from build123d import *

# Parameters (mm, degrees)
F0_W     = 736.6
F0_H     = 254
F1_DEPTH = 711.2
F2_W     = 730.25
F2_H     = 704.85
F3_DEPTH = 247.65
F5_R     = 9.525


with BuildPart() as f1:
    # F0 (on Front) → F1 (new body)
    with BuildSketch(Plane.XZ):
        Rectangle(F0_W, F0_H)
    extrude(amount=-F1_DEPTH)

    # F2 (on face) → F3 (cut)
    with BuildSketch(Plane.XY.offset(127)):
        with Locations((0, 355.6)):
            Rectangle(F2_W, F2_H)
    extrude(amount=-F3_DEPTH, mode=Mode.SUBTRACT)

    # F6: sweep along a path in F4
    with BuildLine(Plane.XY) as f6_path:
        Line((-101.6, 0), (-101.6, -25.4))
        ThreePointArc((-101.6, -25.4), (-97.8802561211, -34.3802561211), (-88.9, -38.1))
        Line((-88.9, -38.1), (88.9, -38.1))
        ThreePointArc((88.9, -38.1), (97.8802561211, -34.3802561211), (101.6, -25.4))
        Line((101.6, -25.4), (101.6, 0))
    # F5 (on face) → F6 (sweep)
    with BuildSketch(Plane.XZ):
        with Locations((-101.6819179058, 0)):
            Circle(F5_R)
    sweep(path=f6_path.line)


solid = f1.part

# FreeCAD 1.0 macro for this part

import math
import FreeCAD as App
import Part
import Sketcher

V = App.Vector
Q = App.Units.Quantity

doc = App.newDocument("Part")
body = doc.addObject("PartDesign::Body", "Body")

# Sketch on XZ plane
sketch1 = body.newObject("Sketcher::SketchObject", "Sketch")
sketch1.AttachmentSupport = (doc.getObject("XZ_Plane"), [""])
sketch1.MapMode = "FlatFace"
sketch1.addGeometry([
    Part.LineSegment(V(-368.3, 127, 0), V(-368.3, -127, 0)),
    Part.LineSegment(V(-368.3, -127, 0), V(368.3, -127, 0)),
    Part.LineSegment(V(368.3, -127, 0), V(368.3, 127, 0)),
    Part.LineSegment(V(368.3, 127, 0), V(-368.3, 127, 0)),
], False)
sketch1.addConstraint([
    Sketcher.Constraint("Coincident", 0, 2, 1, 1),
    Sketcher.Constraint("Coincident", 1, 2, 2, 1),
    Sketcher.Constraint("Coincident", 2, 2, 3, 1),
    Sketcher.Constraint("Coincident", 3, 2, 0, 1),
    Sketcher.Constraint("Vertical", 0),
    Sketcher.Constraint("Horizontal", 1),
    Sketcher.Constraint("Vertical", 2),
    Sketcher.Constraint("Horizontal", 3),
    Sketcher.Constraint("Symmetric", 0, 2, 2, 2, -1, 1),
    Sketcher.Constraint("DistanceX", 1, 1, 1, 2, Q("29 in")),
    Sketcher.Constraint("DistanceY", 0, 2, 0, 1, Q("10 in")),
])
pad1 = body.newObject("PartDesign::Pad", "Pad")
pad1.Profile = sketch1
pad1.Length = Q("28 in")
pad1.Reversed = True

# Sketch on XY plane
sketch2 = body.newObject("Sketcher::SketchObject", "Sketch001")
sketch2.AttachmentSupport = (doc.getObject("XY_Plane"), [""])
sketch2.MapMode = "FlatFace"
sketch2.AttachmentOffset = App.Placement(V(0, 0, 5 * 25.4), App.Rotation())
sketch2.addGeometry([
    Part.LineSegment(V(-365.125, 708.025, 0), V(-365.125, 3.175, 0)),
    Part.LineSegment(V(-365.125, 3.175, 0), V(365.125, 3.175, 0)),
    Part.LineSegment(V(365.125, 3.175, 0), V(365.125, 708.025, 0)),
    Part.LineSegment(V(365.125, 708.025, 0), V(-365.125, 708.025, 0)),
], False)
sketch2.addConstraint([
    Sketcher.Constraint("Coincident", 0, 2, 1, 1),
    Sketcher.Constraint("Coincident", 1, 2, 2, 1),
    Sketcher.Constraint("Coincident", 2, 2, 3, 1),
    Sketcher.Constraint("Coincident", 3, 2, 0, 1),
    Sketcher.Constraint("Vertical", 0),
    Sketcher.Constraint("Horizontal", 1),
    Sketcher.Constraint("Vertical", 2),
    Sketcher.Constraint("Horizontal", 3),
    Sketcher.Constraint("DistanceX", 1, 1, 1, 2, Q("28.75 in")),
    Sketcher.Constraint("DistanceY", 0, 2, 0, 1, Q("27.75 in")),
    Sketcher.Constraint("DistanceX", 0, 2, -1, 1, Q("14.375 in")),
    Sketcher.Constraint("DistanceY", -1, 1, 0, 2, Q("0.125 in")),
])
pocket1 = body.newObject("PartDesign::Pocket", "Pocket")
pocket1.Profile = sketch2
pocket1.Length = Q("9.75 in")

# Sketch on XZ plane
sketch3 = body.newObject("Sketcher::SketchObject", "Sketch002")
sketch3.AttachmentSupport = (doc.getObject("XZ_Plane"), [""])
sketch3.MapMode = "FlatFace"
sketch3.addGeometry(Part.Circle(V(-101.681918, 0, 0), V(0, 0, 1), 9.525), False)
sketch3.addConstraint([
    Sketcher.Constraint("PointOnObject", 0, 3, -1),
    Sketcher.Constraint("Diameter", 0, Q("0.75 in")),
    Sketcher.Constraint("DistanceX", 0, 3, -1, 1, Q("101.681918 mm")),
])

# Sketch on XY plane
sketch4 = body.newObject("Sketcher::SketchObject", "Sketch003")
sketch4.AttachmentSupport = (doc.getObject("XY_Plane"), [""])
sketch4.MapMode = "FlatFace"
sketch4.addGeometry([
    Part.LineSegment(V(-101.6, 0, 0), V(-101.6, -25.4, 0)),  # 0
    Part.ArcOfCircle(Part.Circle(V(-88.9, -25.4, 0), V(0, 0, 1), 12.7), math.radians(180), math.radians(270)),  # 1
    Part.LineSegment(V(-88.9, -38.1, 0), V(88.9, -38.1, 0)),  # 2
    Part.ArcOfCircle(Part.Circle(V(88.9, -25.4, 0), V(0, 0, 1), 12.7), math.radians(-90), math.radians(0)),  # 3
    Part.LineSegment(V(101.6, -25.4, 0), V(101.6, 0, 0)),  # 4
], False)
sketch4.addConstraint([
    Sketcher.Constraint("Tangent", 0, 2, 1, 1),
    Sketcher.Constraint("Tangent", 1, 2, 2, 1),
    Sketcher.Constraint("Tangent", 2, 2, 3, 1),
    Sketcher.Constraint("Tangent", 3, 2, 4, 1),
    Sketcher.Constraint("Vertical", 0),
    Sketcher.Constraint("Horizontal", 2),
    Sketcher.Constraint("Vertical", 4),
    Sketcher.Constraint("Equal", 1, 3),
    Sketcher.Constraint("Symmetric", 0, 1, 4, 2, -1, 1),
    Sketcher.Constraint("PointOnObject", 0, 1, -1),
    Sketcher.Constraint("Radius", 1, Q("0.5 in")),
    Sketcher.Constraint("DistanceX", 2, 1, 2, 2, Q("7 in")),
    Sketcher.Constraint("DistanceY", 0, 2, 0, 1, Q("1 in")),
])
doc.recompute()

additivepipe = body.newObject("PartDesign::AdditivePipe", "AdditivePipe")
additivepipe.Profile = sketch3
additivepipe.Spine = (sketch4, ["Edge1", "Edge2", "Edge3", "Edge4", "Edge5"])

doc.recompute()
